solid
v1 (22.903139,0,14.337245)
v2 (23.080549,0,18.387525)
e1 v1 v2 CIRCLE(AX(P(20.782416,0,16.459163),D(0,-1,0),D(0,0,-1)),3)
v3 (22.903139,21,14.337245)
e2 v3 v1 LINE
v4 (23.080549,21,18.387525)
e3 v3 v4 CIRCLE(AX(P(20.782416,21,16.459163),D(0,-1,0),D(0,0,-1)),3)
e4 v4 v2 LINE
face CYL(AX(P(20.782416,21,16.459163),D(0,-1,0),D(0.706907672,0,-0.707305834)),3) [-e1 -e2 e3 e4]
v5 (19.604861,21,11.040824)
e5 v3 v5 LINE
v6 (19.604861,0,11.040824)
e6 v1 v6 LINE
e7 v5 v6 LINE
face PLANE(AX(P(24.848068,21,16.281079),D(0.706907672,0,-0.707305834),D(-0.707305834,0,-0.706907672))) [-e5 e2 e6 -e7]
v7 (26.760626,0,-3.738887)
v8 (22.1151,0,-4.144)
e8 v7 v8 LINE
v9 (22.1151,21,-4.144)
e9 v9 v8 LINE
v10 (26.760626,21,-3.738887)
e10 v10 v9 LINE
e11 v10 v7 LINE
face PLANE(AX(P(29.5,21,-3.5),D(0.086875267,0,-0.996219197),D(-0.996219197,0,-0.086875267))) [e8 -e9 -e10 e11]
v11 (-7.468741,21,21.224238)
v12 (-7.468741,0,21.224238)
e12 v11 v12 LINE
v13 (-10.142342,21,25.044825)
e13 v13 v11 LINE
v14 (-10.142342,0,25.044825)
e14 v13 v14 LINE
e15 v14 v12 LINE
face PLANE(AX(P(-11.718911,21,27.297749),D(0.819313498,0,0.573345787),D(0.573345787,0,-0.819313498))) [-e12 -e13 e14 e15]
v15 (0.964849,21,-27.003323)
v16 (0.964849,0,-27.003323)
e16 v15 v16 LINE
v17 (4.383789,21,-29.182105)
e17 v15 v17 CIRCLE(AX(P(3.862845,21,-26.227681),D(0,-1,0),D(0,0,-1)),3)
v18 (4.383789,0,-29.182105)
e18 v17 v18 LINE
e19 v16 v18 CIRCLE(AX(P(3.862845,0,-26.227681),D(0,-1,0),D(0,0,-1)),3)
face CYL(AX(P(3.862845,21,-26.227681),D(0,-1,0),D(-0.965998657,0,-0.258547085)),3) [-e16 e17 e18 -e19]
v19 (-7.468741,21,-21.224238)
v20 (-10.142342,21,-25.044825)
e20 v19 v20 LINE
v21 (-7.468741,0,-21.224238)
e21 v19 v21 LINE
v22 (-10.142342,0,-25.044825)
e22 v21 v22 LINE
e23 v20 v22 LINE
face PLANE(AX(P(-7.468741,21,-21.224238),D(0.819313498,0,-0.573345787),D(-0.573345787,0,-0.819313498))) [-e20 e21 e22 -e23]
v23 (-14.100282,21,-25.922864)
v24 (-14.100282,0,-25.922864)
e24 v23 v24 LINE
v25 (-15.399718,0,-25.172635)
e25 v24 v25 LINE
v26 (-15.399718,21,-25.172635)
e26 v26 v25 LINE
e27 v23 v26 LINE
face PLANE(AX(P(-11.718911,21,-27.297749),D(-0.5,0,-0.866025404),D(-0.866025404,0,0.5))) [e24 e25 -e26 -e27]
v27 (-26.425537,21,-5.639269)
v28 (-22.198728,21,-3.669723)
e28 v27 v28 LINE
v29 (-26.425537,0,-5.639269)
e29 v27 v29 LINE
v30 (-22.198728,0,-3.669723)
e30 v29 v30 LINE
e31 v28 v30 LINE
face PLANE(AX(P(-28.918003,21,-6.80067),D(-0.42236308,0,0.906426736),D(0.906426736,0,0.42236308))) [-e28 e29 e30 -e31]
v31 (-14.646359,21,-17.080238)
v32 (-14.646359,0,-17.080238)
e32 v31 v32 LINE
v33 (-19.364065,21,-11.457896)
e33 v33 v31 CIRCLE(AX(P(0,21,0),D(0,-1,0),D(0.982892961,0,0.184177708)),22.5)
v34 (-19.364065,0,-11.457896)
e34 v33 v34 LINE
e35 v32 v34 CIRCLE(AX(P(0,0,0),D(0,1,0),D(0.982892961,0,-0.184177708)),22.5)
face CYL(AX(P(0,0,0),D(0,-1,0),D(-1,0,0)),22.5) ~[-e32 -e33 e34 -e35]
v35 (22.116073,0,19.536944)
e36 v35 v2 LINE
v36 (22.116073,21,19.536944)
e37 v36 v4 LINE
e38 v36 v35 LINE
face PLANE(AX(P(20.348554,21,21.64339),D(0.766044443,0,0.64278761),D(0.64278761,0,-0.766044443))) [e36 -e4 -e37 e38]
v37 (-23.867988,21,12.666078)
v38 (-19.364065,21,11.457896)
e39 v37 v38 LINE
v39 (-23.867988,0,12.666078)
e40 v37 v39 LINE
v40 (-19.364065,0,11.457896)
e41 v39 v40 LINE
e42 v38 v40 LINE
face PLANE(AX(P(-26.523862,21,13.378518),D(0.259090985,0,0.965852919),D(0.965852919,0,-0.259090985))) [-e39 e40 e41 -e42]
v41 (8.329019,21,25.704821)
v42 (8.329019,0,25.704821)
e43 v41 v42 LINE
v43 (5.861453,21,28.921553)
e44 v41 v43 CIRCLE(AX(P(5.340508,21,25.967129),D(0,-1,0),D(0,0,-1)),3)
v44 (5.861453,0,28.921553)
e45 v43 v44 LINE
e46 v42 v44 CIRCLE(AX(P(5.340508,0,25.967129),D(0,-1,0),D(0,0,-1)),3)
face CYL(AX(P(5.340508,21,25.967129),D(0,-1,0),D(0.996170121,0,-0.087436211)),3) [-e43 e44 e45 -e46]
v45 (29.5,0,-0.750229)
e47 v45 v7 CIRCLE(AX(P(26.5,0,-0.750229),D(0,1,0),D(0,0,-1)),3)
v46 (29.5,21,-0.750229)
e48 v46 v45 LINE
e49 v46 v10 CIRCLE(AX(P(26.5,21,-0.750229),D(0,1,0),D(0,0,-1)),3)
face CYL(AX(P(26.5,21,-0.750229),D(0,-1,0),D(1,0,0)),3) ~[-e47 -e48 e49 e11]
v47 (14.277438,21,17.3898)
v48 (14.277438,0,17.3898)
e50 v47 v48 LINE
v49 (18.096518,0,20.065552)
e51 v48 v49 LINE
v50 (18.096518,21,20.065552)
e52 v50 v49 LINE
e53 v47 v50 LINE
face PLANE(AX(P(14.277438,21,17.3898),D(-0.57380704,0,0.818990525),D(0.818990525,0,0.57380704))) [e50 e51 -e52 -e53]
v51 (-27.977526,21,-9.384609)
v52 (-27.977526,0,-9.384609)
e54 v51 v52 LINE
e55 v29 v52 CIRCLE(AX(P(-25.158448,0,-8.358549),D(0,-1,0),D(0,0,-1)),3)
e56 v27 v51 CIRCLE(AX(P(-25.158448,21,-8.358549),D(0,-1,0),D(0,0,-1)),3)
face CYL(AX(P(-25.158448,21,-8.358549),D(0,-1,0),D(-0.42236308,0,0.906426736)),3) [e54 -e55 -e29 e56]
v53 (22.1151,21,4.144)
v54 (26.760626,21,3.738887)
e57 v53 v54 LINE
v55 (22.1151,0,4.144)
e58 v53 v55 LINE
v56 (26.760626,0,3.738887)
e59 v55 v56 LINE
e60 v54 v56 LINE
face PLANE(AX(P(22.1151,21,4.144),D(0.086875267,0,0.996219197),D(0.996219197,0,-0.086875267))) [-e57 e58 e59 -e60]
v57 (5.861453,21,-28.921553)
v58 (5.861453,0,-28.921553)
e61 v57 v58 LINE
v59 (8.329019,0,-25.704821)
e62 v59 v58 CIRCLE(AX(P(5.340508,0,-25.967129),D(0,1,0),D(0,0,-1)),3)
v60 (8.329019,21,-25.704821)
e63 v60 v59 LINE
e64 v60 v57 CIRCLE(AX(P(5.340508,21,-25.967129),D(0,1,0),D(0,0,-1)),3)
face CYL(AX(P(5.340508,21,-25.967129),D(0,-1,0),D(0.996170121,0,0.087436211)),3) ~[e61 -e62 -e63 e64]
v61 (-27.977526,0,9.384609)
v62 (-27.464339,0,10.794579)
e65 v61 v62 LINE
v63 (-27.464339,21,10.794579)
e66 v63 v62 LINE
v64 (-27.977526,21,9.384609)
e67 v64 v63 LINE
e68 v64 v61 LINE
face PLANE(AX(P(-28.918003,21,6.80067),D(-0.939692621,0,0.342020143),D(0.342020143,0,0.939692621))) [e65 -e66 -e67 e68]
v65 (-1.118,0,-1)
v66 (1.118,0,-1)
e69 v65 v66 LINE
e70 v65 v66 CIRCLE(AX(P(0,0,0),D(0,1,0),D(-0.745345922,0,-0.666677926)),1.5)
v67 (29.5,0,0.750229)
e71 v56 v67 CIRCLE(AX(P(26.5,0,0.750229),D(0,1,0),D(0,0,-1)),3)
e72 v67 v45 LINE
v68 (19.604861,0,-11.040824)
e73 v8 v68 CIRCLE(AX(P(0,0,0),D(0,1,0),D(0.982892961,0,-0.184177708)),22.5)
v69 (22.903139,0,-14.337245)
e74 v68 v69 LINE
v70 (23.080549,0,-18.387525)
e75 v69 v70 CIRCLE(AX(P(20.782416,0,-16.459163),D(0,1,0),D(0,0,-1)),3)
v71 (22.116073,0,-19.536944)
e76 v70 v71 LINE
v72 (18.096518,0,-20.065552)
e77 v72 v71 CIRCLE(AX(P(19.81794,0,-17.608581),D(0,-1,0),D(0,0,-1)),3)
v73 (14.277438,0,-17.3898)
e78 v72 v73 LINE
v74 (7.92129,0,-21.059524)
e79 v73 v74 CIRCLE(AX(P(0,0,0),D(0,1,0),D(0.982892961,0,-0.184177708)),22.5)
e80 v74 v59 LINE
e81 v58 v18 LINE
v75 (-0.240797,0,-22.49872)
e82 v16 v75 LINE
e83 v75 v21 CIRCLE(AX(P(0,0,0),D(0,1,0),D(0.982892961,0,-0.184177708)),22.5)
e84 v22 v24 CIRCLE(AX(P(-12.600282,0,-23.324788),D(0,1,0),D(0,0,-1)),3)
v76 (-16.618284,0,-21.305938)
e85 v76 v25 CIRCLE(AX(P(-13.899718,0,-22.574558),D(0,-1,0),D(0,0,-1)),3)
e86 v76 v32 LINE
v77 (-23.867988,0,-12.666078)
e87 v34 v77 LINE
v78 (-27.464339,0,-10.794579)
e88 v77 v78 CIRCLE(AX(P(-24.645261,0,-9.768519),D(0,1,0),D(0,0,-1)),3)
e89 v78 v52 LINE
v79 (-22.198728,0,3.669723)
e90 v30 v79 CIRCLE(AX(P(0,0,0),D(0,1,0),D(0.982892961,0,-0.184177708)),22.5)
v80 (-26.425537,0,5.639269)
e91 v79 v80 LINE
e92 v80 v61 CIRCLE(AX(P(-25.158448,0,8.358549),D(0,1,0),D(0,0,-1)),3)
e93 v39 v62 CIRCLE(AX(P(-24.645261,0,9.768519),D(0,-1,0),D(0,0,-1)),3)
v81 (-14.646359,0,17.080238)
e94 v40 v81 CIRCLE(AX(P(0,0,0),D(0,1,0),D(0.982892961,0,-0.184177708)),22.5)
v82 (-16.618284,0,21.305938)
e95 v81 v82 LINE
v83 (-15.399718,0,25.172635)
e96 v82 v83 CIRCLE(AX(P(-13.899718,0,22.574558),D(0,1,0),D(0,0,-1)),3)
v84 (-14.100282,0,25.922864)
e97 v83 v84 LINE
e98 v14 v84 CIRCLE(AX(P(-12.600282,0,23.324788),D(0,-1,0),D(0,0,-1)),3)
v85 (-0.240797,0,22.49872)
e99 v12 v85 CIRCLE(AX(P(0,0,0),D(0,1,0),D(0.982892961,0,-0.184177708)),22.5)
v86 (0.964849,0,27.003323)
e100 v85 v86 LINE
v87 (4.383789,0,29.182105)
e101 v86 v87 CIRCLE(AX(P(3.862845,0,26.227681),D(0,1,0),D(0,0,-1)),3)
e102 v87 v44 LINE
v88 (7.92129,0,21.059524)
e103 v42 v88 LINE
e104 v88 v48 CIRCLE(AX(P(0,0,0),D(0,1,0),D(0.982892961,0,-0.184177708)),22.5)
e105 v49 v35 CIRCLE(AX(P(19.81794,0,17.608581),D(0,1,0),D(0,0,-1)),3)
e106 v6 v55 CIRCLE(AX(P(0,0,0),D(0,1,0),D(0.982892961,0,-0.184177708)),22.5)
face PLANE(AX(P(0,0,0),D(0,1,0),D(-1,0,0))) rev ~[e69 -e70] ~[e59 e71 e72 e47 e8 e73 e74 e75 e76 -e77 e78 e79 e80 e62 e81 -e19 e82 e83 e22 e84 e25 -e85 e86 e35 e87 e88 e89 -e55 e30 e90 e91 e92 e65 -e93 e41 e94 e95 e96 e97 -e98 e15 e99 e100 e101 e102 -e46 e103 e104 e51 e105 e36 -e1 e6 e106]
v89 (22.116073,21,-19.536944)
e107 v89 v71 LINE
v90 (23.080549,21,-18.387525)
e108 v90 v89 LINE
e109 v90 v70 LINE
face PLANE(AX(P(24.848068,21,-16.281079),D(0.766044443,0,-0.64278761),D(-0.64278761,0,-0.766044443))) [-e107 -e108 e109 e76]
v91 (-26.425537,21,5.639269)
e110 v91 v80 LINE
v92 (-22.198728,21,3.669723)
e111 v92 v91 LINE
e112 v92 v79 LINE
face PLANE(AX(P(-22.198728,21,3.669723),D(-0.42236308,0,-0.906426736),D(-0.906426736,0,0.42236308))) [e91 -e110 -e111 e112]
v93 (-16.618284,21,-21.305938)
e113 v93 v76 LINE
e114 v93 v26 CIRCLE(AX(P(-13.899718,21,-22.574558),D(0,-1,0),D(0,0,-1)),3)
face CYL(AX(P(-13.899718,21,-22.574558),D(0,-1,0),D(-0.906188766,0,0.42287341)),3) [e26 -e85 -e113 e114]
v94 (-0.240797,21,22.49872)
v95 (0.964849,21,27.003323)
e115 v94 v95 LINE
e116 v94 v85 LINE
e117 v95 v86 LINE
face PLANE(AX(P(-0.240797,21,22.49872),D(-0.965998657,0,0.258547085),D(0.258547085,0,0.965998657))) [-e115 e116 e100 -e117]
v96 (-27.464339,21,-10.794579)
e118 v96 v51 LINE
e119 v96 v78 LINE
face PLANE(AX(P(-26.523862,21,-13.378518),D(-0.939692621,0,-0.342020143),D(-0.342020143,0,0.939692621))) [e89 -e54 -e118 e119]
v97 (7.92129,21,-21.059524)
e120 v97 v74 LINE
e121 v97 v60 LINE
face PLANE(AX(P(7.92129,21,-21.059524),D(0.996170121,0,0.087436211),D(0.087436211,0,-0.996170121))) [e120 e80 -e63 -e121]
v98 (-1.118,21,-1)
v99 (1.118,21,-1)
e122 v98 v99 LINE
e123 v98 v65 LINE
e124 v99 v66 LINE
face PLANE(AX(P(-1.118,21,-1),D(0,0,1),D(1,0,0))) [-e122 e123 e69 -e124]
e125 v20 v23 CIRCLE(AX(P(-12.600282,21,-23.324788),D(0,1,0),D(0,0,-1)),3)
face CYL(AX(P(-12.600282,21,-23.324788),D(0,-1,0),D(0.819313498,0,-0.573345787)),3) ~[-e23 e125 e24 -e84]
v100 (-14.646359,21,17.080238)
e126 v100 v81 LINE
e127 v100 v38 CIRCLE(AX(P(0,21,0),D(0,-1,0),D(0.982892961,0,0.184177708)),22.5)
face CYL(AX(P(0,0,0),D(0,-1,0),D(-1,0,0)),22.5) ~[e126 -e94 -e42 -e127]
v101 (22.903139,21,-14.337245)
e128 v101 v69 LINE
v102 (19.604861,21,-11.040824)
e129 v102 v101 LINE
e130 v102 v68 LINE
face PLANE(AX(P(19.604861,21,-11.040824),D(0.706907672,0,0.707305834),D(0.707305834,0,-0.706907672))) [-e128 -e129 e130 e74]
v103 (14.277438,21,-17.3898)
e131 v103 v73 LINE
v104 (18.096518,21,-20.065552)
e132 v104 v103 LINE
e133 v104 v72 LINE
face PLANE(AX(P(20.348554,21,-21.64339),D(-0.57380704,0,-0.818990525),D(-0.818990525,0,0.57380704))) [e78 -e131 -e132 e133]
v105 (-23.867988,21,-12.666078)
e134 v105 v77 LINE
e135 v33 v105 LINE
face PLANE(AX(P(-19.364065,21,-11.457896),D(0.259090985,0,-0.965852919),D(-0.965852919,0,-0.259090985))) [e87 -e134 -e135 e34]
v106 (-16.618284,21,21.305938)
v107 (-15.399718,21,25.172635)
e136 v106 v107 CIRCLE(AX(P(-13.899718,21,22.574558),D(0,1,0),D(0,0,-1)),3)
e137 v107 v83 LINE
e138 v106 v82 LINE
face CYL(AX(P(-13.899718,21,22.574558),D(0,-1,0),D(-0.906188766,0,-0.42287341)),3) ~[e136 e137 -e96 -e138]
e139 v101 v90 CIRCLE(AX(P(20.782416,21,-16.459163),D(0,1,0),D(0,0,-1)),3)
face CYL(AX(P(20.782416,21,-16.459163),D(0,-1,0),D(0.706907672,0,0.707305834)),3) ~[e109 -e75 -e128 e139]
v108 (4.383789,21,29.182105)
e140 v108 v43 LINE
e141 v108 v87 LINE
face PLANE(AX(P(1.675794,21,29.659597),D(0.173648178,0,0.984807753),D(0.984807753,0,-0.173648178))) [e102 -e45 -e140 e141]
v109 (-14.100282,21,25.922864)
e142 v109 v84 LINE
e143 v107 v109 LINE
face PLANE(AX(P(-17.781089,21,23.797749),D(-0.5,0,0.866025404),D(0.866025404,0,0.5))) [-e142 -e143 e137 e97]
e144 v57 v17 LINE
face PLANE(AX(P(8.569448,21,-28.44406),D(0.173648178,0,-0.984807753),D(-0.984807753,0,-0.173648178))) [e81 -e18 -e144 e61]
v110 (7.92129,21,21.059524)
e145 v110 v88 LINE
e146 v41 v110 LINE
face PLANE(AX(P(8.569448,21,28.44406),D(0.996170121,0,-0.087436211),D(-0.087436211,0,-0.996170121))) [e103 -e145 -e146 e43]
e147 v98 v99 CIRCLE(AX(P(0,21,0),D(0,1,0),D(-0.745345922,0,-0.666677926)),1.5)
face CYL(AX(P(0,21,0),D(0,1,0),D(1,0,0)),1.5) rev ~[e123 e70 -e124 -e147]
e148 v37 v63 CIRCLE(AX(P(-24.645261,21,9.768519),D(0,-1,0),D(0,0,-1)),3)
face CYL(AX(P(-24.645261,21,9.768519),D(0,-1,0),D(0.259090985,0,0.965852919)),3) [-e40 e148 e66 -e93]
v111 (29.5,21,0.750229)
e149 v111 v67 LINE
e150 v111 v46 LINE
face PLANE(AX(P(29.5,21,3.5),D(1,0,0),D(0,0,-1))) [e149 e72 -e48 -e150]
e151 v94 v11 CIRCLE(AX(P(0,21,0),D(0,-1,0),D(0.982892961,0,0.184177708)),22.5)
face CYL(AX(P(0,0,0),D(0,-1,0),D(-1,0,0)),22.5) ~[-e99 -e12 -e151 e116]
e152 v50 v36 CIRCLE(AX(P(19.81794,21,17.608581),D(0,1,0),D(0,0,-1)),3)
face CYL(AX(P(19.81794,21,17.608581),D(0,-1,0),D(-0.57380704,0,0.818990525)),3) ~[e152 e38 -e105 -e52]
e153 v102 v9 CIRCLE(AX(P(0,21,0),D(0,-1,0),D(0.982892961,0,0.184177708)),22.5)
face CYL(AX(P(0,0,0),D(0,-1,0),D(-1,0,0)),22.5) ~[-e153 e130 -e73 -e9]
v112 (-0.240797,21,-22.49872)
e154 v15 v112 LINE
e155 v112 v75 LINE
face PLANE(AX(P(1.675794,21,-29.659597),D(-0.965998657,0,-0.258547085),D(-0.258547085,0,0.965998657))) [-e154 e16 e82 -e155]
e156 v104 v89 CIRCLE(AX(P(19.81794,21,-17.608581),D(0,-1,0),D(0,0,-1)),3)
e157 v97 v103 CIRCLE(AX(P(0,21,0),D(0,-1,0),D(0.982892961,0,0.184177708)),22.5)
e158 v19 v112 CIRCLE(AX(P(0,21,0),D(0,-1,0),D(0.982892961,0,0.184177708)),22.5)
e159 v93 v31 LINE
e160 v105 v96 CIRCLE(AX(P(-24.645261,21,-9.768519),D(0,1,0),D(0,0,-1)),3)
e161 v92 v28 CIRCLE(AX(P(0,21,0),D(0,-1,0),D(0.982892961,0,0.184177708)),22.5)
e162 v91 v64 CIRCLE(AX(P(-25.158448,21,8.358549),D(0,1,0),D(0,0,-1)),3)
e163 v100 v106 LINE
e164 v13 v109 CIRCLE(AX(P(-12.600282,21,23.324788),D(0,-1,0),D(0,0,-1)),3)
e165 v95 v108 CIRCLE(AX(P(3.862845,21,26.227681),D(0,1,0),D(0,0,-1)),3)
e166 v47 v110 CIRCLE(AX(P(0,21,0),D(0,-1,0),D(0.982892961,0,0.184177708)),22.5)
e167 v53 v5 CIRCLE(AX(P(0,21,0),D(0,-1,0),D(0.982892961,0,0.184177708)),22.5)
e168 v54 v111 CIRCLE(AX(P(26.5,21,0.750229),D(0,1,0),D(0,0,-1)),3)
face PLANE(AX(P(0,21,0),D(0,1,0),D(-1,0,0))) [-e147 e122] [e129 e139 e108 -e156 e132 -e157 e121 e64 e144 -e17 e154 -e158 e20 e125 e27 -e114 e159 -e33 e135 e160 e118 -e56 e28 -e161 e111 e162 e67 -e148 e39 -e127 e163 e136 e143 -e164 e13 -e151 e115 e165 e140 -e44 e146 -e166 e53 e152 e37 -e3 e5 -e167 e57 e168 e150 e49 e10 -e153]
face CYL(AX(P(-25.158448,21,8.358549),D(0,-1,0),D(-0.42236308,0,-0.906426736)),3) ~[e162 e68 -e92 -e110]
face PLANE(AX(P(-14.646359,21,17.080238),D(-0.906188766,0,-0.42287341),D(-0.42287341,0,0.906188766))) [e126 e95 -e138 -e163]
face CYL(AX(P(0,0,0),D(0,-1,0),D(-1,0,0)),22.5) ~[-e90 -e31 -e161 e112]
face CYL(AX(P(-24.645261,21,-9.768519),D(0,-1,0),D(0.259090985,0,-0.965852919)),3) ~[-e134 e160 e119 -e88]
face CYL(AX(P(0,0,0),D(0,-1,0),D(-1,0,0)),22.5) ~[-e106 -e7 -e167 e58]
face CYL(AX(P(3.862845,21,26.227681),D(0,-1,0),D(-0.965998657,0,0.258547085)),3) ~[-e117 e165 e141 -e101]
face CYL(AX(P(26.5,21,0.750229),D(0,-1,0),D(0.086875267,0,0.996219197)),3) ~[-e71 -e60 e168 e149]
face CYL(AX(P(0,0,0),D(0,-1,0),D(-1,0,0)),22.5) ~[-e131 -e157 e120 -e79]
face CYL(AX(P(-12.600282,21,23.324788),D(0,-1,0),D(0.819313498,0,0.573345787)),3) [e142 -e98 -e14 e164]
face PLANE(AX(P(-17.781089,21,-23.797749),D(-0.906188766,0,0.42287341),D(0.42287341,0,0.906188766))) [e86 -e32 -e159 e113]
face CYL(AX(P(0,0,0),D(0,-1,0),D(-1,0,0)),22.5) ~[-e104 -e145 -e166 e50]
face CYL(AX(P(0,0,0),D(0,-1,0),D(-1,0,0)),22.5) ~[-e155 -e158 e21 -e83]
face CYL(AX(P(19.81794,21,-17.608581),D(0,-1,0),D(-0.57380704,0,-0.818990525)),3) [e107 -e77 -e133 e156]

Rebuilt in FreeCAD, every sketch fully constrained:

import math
import FreeCAD as App
import Part
import Sketcher

V = App.Vector


def edges_at(feature, points):
    """Names of the edges that pass closest to the given points."""
    edges = feature.Shape.Edges
    near = lambda p: min(range(len(edges)), key=lambda i: edges[i].distToShape(Part.Vertex(*p))[0])
    return sorted({f"Edge{near(p) + 1}" for p in points})

doc = App.newDocument("Part")
params = doc.addObject("Spreadsheet::Sheet", "Params")
for row, (alias, value) in enumerate([
    ("sketch1_diameter", "45 mm"),
    ("pad1_length", "21 mm"),
    ("sketch2_height", "7 mm"),
    ("sketch2_radius", "22.5 mm"),
    ("pad2_length", "21 mm"),
    ("fillet_radius", "3 mm"),
    ("sketch3_radius", "1.5 mm"),
], start=1):
    params.set(f"A{row}", alias)
    params.set(f"B{row}", "=" + value)
    params.setAlias(f"B{row}", alias)

body = doc.addObject("PartDesign::Body", "Body")

sketch1 = body.newObject("Sketcher::SketchObject", "Sketch")
sketch1.AttachmentSupport = (doc.getObject("XZ_Plane"), [""])
sketch1.MapMode = "FlatFace"
sketch1.addGeometry(Part.Circle(V(0, 0, 0), V(0, 0, 1), 22), False)
sketch1.addConstraint([
    Sketcher.Constraint("Coincident", 0, 3, -1, 1),
    Sketcher.Constraint("Diameter", 0, 45.0),
])
sketch1.setExpression("Constraints[1]", "Params.sketch1_diameter")
pad1 = body.newObject("PartDesign::Pad", "Pad")
pad1.Profile = sketch1
pad1.setExpression("Length", "Params.pad1_length")
pad1.Reversed = True

sketch2 = body.newObject("Sketcher::SketchObject", "Sketch001")
sketch2.AttachmentSupport = (doc.getObject("XZ_Plane"), [""])
sketch2.MapMode = "FlatFace"
sketch2.AttachmentOffset = App.Placement(V(0, 0, -21), App.Rotation())
sketch2.addGeometry([
    Part.ArcOfCircle(Part.Circle(V(0, 0, 0), V(0, 0, 1), 22.5), math.radians(-10.613195), math.radians(10.613195)),
    Part.LineSegment(V(22.1151, 4.144, 0), V(29.5, 3.5, 0)),
    Part.LineSegment(V(29.5, 3.5, 0), V(29.5, -3.5, 0)),
    Part.LineSegment(V(29.5, -3.5, 0), V(22.1151, -4.144, 0)),
], False)
sketch2.addConstraint([
    Sketcher.Constraint("Coincident", 0, 2, 1, 1),
    Sketcher.Constraint("Coincident", 1, 2, 2, 1),
    Sketcher.Constraint("Coincident", 2, 2, 3, 1),
    Sketcher.Constraint("Coincident", 3, 2, 0, 1),
    Sketcher.Constraint("Vertical", 2),
    Sketcher.Constraint("Coincident", 0, 3, -1, 1),
    Sketcher.Constraint("Vertical", 0, 2, 3, 2),
    Sketcher.Constraint("Equal", 1, 3),
    Sketcher.Constraint("DistanceY", 2, 2, 2, 1, 7.0),
    Sketcher.Constraint("Radius", 0, 22.5),
    Sketcher.Constraint("DistanceX", -1, 1, 1, 2, 29.5),
    Sketcher.Constraint("Distance", 1, 7.413),
])
sketch2.setExpression("Constraints[8]", "Params.sketch2_height")
sketch2.setExpression("Constraints[9]", "Params.sketch2_radius")
pad2 = body.newObject("PartDesign::Pad", "Pad001")
pad2.Profile = sketch2
pad2.setExpression("Length", "Params.pad2_length")
doc.recompute()

fillet = body.newObject("PartDesign::Fillet", "Fillet")
fillet.Base = (pad2, edges_at(pad2, [(29.5, 10.5, -3.5), (29.5, 10.5, 3.5)]))
fillet.setExpression("Radius", "Params.fillet_radius")
doc.recompute()

polarpattern = body.newObject("PartDesign::PolarPattern", "PolarPattern")
polarpattern.Originals = [pad2, fillet]
polarpattern.Axis = (doc.getObject("Y_Axis"), [""])
polarpattern.Angle = 360
polarpattern.Occurrences = 9
body.Tip = polarpattern

sketch3 = body.newObject("Sketcher::SketchObject", "Sketch002")
sketch3.AttachmentSupport = (doc.getObject("XZ_Plane"), [""])
sketch3.MapMode = "FlatFace"
sketch3.AttachmentOffset = App.Placement(V(0, 0, -21), App.Rotation())
sketch3.addGeometry([
    Part.ArcOfCircle(Part.Circle(V(0, 0, 0), V(0, 0, 1), 1.5), math.radians(-42), math.radians(222)),
    Part.LineSegment(V(-1.1, -1, 0), V(1.1, -1, 0)),
], False)
sketch3.addConstraint([
    Sketcher.Constraint("Coincident", 0, 1, 1, 2),
    Sketcher.Constraint("Coincident", 1, 1, 0, 2),
    Sketcher.Constraint("Horizontal", 1),
    Sketcher.Constraint("Coincident", 0, 3, -1, 1),
    Sketcher.Constraint("Radius", 0, 1.5),
    Sketcher.Constraint("DistanceY", 0, 1, -1, 1, 1.0),
])
sketch3.setExpression("Constraints[4]", "Params.sketch3_radius")
pocket1 = body.newObject("PartDesign::Pocket", "Pocket")
pocket1.Profile = sketch3
pocket1.Type = "ThroughAll"
pocket1.Reversed = True

doc.recompute()
